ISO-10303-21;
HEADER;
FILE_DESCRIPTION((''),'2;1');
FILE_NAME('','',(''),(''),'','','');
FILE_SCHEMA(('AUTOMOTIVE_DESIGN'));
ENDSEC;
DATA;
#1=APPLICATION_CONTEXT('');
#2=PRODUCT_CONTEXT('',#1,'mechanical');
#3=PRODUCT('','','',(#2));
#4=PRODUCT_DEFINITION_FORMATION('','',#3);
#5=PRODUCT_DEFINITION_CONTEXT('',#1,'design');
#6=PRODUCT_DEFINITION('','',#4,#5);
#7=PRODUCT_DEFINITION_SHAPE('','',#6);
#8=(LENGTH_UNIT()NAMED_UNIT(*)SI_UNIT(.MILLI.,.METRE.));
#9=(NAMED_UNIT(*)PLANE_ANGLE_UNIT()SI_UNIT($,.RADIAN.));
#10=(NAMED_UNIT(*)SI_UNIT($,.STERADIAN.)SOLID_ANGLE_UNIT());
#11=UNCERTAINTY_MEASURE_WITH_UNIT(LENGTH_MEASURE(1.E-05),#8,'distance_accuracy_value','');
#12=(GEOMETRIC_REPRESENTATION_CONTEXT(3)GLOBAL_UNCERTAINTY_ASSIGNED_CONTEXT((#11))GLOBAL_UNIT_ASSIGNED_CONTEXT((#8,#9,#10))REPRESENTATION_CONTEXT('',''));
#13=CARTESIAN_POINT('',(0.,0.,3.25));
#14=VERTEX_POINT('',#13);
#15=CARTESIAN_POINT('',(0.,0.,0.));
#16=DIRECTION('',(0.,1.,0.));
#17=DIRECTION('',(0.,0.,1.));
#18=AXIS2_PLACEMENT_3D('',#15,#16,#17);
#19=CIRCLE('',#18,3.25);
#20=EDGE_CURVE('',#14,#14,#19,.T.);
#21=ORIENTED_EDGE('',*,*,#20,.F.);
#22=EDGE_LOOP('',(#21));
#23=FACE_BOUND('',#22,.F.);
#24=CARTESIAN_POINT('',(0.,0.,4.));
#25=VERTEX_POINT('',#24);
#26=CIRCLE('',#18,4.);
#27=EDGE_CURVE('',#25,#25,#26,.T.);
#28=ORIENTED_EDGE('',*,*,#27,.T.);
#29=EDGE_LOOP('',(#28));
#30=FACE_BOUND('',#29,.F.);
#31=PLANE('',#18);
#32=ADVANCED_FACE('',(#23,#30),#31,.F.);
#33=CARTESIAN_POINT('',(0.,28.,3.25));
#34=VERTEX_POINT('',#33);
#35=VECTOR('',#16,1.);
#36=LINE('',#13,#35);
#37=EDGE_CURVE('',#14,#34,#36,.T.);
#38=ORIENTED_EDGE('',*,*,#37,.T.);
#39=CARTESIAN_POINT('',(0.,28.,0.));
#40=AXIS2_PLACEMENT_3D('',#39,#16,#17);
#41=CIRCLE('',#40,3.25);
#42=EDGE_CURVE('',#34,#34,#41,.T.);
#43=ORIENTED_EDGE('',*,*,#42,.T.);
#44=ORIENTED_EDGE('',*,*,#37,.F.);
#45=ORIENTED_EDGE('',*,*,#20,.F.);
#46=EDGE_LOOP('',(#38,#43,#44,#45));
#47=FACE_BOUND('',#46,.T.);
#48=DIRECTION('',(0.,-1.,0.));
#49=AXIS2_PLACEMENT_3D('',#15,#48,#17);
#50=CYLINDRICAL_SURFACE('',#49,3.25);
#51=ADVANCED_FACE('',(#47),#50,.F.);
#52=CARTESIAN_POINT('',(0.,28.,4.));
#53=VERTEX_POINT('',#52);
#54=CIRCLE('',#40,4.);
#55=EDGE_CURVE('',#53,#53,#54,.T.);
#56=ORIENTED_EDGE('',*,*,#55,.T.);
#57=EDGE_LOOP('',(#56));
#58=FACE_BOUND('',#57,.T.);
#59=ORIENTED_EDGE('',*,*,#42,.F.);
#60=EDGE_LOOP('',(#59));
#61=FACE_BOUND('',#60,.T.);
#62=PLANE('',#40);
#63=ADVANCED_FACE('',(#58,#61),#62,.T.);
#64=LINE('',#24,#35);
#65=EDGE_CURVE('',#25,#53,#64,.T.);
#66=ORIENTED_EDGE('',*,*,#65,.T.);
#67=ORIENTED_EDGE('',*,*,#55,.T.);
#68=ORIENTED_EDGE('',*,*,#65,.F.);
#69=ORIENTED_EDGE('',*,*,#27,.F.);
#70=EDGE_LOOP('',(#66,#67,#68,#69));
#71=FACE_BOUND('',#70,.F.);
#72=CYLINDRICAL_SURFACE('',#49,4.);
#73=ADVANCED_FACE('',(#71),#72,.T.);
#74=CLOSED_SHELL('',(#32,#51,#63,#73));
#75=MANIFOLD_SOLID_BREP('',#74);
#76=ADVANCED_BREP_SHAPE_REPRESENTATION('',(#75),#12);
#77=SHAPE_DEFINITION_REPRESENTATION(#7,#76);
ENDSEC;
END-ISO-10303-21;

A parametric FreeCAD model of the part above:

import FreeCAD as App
import Part
import Sketcher
from FreeCAD import Vector
Q = App.Units.Quantity

doc = App.newDocument("Part")
body = doc.addObject("PartDesign::Body", "Body")

sketch1 = doc.addObject("Sketcher::SketchObject", "Sketch")
body.addObject(sketch1)
sketch1.AttachmentSupport = (doc.XZ_Plane, [""])
sketch1.MapMode = "FlatFace"
sketch1.addGeometry([
    Part.Circle(Vector(0, 0, 0), Vector(0, 0, 1), 4),
    Part.Circle(Vector(0, 0, 0), Vector(0, 0, 1), 3.2),
], False)
sketch1.addConstraint([
    Sketcher.Constraint("Coincident", 0, 3, -1, 1),
    Sketcher.Constraint("Coincident", 1, 3, -1, 1),
    Sketcher.Constraint("Diameter", 0, Q("8 mm")),
    Sketcher.Constraint("Diameter", 1, Q("6.5 mm")),
])
pad1 = doc.addObject("PartDesign::Pad", "Pad")
body.addObject(pad1)
pad1.Profile = sketch1
pad1.Length = 28
pad1.Reversed = True

doc.recompute()
